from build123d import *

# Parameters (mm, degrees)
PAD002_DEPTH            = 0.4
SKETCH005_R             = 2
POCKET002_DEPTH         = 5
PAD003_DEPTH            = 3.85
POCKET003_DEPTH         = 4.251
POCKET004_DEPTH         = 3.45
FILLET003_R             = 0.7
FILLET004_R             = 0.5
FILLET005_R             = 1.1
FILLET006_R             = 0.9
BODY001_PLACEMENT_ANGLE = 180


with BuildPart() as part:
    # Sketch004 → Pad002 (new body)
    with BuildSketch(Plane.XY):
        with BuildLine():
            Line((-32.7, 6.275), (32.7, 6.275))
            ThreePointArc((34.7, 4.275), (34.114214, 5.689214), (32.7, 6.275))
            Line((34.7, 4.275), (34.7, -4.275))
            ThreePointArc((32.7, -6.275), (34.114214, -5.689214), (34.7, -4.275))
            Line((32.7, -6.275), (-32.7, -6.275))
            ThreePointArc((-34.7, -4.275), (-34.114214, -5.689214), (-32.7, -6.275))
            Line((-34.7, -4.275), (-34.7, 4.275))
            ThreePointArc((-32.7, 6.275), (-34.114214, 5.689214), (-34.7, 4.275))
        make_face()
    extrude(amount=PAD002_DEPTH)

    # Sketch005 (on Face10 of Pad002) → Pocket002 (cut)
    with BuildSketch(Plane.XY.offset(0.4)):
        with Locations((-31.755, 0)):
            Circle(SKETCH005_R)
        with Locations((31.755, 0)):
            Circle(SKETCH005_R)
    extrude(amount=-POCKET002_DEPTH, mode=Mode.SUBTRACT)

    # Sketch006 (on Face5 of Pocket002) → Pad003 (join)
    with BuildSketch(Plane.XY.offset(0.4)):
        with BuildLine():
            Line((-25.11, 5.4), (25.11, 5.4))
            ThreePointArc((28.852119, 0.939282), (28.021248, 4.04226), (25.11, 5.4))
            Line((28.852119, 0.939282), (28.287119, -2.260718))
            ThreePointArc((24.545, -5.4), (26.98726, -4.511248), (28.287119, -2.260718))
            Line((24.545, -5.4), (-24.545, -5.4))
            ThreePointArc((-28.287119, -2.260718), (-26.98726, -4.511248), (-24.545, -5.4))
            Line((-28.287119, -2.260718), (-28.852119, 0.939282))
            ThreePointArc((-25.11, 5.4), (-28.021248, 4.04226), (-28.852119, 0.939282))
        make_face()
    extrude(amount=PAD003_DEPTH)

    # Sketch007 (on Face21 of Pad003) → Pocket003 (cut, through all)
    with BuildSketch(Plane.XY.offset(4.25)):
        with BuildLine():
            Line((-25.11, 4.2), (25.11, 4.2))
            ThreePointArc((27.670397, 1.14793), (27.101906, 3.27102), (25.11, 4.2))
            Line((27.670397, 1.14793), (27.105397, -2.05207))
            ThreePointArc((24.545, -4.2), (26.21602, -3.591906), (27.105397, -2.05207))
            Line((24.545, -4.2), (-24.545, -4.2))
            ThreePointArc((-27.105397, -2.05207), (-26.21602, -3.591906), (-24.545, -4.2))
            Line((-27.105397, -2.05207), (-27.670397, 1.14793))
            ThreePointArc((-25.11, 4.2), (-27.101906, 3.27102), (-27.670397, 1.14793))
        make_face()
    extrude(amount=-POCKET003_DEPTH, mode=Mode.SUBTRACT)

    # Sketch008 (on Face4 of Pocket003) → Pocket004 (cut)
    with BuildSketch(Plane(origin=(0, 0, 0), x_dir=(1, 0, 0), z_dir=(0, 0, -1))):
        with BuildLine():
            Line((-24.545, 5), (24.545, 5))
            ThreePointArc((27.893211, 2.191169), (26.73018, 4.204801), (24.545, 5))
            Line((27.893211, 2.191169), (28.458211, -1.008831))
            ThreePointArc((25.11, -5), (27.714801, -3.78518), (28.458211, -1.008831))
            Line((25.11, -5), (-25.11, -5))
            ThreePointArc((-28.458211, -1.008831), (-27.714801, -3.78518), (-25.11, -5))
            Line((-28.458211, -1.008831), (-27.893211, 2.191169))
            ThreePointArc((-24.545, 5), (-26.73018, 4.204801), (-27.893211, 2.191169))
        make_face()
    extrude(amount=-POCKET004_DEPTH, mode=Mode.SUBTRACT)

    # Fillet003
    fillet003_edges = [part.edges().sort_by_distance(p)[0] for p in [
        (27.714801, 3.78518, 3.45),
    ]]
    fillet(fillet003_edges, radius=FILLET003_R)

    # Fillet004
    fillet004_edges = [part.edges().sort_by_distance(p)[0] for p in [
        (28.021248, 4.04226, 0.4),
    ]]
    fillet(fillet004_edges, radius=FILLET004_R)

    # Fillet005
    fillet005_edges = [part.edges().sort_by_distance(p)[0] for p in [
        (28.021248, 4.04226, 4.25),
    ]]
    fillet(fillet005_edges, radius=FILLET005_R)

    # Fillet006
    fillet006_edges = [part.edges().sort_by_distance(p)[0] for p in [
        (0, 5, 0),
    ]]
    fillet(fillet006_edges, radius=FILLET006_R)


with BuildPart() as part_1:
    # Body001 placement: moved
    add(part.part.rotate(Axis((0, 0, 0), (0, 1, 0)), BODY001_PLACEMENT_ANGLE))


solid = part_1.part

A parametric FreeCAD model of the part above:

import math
import FreeCAD as App
import Part
import Sketcher
Q = App.Units.Quantity


def edges_at(feature, points):
    """Names of the edges that pass closest to the given points."""
    edges = feature.Shape.Edges
    near = lambda p: min(range(len(edges)), key=lambda i: edges[i].distToShape(Part.Vertex(*p))[0])
    return sorted({f"Edge{near(p) + 1}" for p in points})

doc = App.newDocument("Part")
body = doc.addObject("PartDesign::Body", "Body")

# Sketch on XY plane
sketch1 = body.newObject("Sketcher::SketchObject", "Sketch")
sketch1.AttachmentSupport = (doc.getObject("XY_Plane"), [""])
sketch1.MapMode = "FlatFace"
sketch1.addGeometry(Part.LineSegment(App.Vector(32.7, 6.3, 0), App.Vector(-32.7, 6.3, 0)), False)
sketch1.addGeometry(Part.ArcOfCircle(Part.Circle(App.Vector(-32.7, 4.3, 0), App.Vector(0, 0, 1), 2), math.radians(90), math.radians(180)), False)
sketch1.addGeometry(Part.LineSegment(App.Vector(-34.7, 4.3, 0), App.Vector(-34.7, -4.3, 0)), False)
sketch1.addGeometry(Part.ArcOfCircle(Part.Circle(App.Vector(-32.7, -4.3, 0), App.Vector(0, 0, 1), 2), math.radians(180), math.radians(270)), False)
sketch1.addGeometry(Part.LineSegment(App.Vector(-32.7, -6.3, 0), App.Vector(32.7, -6.3, 0)), False)
sketch1.addGeometry(Part.ArcOfCircle(Part.Circle(App.Vector(32.7, -4.3, 0), App.Vector(0, 0, 1), 2), math.radians(-90), math.radians(0)), False)
sketch1.addGeometry(Part.LineSegment(App.Vector(34.7, -4.3, 0), App.Vector(34.7, 4.3, 0)), False)
sketch1.addGeometry(Part.ArcOfCircle(Part.Circle(App.Vector(32.7, 4.3, 0), App.Vector(0, 0, 1), 2), math.radians(0), math.radians(90)), False)
sketch1.addConstraint(Sketcher.Constraint("Tangent", 0, 2, 1, 1))
sketch1.addConstraint(Sketcher.Constraint("Tangent", 1, 2, 2, 1))
sketch1.addConstraint(Sketcher.Constraint("Tangent", 2, 2, 3, 1))
sketch1.addConstraint(Sketcher.Constraint("Tangent", 3, 2, 4, 1))
sketch1.addConstraint(Sketcher.Constraint("Tangent", 4, 2, 5, 1))
sketch1.addConstraint(Sketcher.Constraint("Tangent", 5, 2, 6, 1))
sketch1.addConstraint(Sketcher.Constraint("Tangent", 6, 2, 7, 1))
sketch1.addConstraint(Sketcher.Constraint("Tangent", 7, 2, 0, 1))
sketch1.addConstraint(Sketcher.Constraint("Horizontal", 0))
sketch1.addConstraint(Sketcher.Constraint("Vertical", 2))
sketch1.addConstraint(Sketcher.Constraint("Horizontal", 4))
sketch1.addConstraint(Sketcher.Constraint("Vertical", 6))
sketch1.addConstraint(Sketcher.Constraint("Equal", 1, 3))
sketch1.addConstraint(Sketcher.Constraint("Equal", 3, 5))
sketch1.addConstraint(Sketcher.Constraint("Equal", 5, 7))
sketch1.addConstraint(Sketcher.Constraint("Symmetric", 1, 3, 5, 3, -1, 1))
sketch1.addConstraint(Sketcher.Constraint("Radius", 1, Q("1.999999 mm")))
sketch1.addConstraint(Sketcher.Constraint("DistanceX", 0, 2, 0, 1, Q("65.4 mm")))
sketch1.addConstraint(Sketcher.Constraint("DistanceY", 2, 2, 2, 1, Q("8.55 mm")))
pad1 = body.newObject("PartDesign::Pad", "Pad")
pad1.Profile = sketch1
pad1.Length = 0.4

# Sketch on XY plane
sketch2 = body.newObject("Sketcher::SketchObject", "Sketch001")
sketch2.AttachmentSupport = (doc.getObject("XY_Plane"), [""])
sketch2.MapMode = "FlatFace"
sketch2.AttachmentOffset = App.Placement(App.Vector(0, 0, 0.4), App.Rotation())
sketch2.addGeometry(Part.Circle(App.Vector(-31.8, 0, 0), App.Vector(0, 0, 1), 2), False)
sketch2.addGeometry(Part.Circle(App.Vector(31.8, 0, 0), App.Vector(0, 0, 1), 2), False)
sketch2.addConstraint(Sketcher.Constraint("Equal", 0, 1))
sketch2.addConstraint(Sketcher.Constraint("Symmetric", 0, 3, 1, 3, -1, 1))
sketch2.addConstraint(Sketcher.Constraint("PointOnObject", 0, 3, -1))
sketch2.addConstraint(Sketcher.Constraint("Diameter", 0, Q("4 mm")))
sketch2.addConstraint(Sketcher.Constraint("DistanceX", 0, 3, 1, 3, Q("63.51 mm")))
pocket1 = body.newObject("PartDesign::Pocket", "Pocket")
pocket1.Profile = sketch2
pocket1.Length = 5

# Sketch on XY plane
sketch3 = body.newObject("Sketcher::SketchObject", "Sketch002")
sketch3.AttachmentSupport = (doc.getObject("XY_Plane"), [""])
sketch3.MapMode = "FlatFace"
sketch3.AttachmentOffset = App.Placement(App.Vector(0, 0, 0.4), App.Rotation())
sketch3.addGeometry(Part.LineSegment(App.Vector(25.1, 5.4, 0), App.Vector(-25.1, 5.4, 0)), False)
sketch3.addGeometry(Part.ArcOfCircle(Part.Circle(App.Vector(-25.1, 1.6, 0), App.Vector(0, 0, 1), 3.8), math.radians(90), math.radians(190)), False)
sketch3.addGeometry(Part.LineSegment(App.Vector(-28.9, 0.9, 0), App.Vector(-28.3, -2.3, 0)), False)
sketch3.addGeometry(Part.ArcOfCircle(Part.Circle(App.Vector(-24.5, -1.6, 0), App.Vector(0, 0, 1), 3.8), math.radians(-170), math.radians(-90)), False)
sketch3.addGeometry(Part.LineSegment(App.Vector(-24.5, -5.4, 0), App.Vector(24.5, -5.4, 0)), False)
sketch3.addGeometry(Part.ArcOfCircle(Part.Circle(App.Vector(24.5, -1.6, 0), App.Vector(0, 0, 1), 3.8), math.radians(-90), math.radians(-10)), False)
sketch3.addGeometry(Part.LineSegment(App.Vector(28.3, -2.3, 0), App.Vector(28.9, 0.9, 0)), False)
sketch3.addGeometry(Part.ArcOfCircle(Part.Circle(App.Vector(25.1, 1.6, 0), App.Vector(0, 0, 1), 3.8), math.radians(-10), math.radians(90)), False)
sketch3.addConstraint(Sketcher.Constraint("Tangent", 0, 2, 1, 1))
sketch3.addConstraint(Sketcher.Constraint("Tangent", 1, 2, 2, 1))
sketch3.addConstraint(Sketcher.Constraint("Tangent", 2, 2, 3, 1))
sketch3.addConstraint(Sketcher.Constraint("Tangent", 3, 2, 4, 1))
sketch3.addConstraint(Sketcher.Constraint("Tangent", 4, 2, 5, 1))
sketch3.addConstraint(Sketcher.Constraint("Tangent", 5, 2, 6, 1))
sketch3.addConstraint(Sketcher.Constraint("Tangent", 6, 2, 7, 1))
sketch3.addConstraint(Sketcher.Constraint("Tangent", 7, 2, 0, 1))
sketch3.addConstraint(Sketcher.Constraint("Horizontal", 0))
sketch3.addConstraint(Sketcher.Constraint("Horizontal", 4))
sketch3.addConstraint(Sketcher.Constraint("Equal", 1, 3))
sketch3.addConstraint(Sketcher.Constraint("Equal", 3, 5))
sketch3.addConstraint(Sketcher.Constraint("Equal", 5, 7))
sketch3.addConstraint(Sketcher.Constraint("Symmetric", 2, 2, 5, 2, -2))
sketch3.addConstraint(Sketcher.Constraint("Radius", 1, Q("3.800001 mm")))
sketch3.addConstraint(Sketcher.Constraint("DistanceY", 3, 3, 0, 2, Q("6.999999 mm")))
sketch3.addConstraint(Sketcher.Constraint("DistanceX", 0, 2, 0, 1, Q("50.22 mm")))
sketch3.addConstraint(Sketcher.Constraint("DistanceX", 4, 1, 4, 2, Q("49.09 mm")))
sketch3.addConstraint(Sketcher.Constraint("DistanceY", -1, 1, 1, 3, Q("1.599999 mm")))
pad2 = body.newObject("PartDesign::Pad", "Pad001")
pad2.Profile = sketch3
pad2.Length = 3.85

# Sketch on XY plane
sketch4 = body.newObject("Sketcher::SketchObject", "Sketch003")
sketch4.AttachmentSupport = (doc.getObject("XY_Plane"), [""])
sketch4.MapMode = "FlatFace"
sketch4.AttachmentOffset = App.Placement(App.Vector(0, 0, 4.25), App.Rotation())
sketch4.addGeometry(Part.LineSegment(App.Vector(25.1, 4.2, 0), App.Vector(-25.1, 4.2, 0)), False)
sketch4.addGeometry(Part.ArcOfCircle(Part.Circle(App.Vector(-25.1, 1.6, 0), App.Vector(0, 0, 1), 2.6), math.radians(90), math.radians(190)), False)
sketch4.addGeometry(Part.LineSegment(App.Vector(-27.7, 1.1, 0), App.Vector(-27.1, -2.1, 0)), False)
sketch4.addGeometry(Part.ArcOfCircle(Part.Circle(App.Vector(-24.5, -1.6, 0), App.Vector(0, 0, 1), 2.6), math.radians(-170), math.radians(-90)), False)
sketch4.addGeometry(Part.LineSegment(App.Vector(-24.5, -4.2, 0), App.Vector(24.5, -4.2, 0)), False)
sketch4.addGeometry(Part.ArcOfCircle(Part.Circle(App.Vector(24.5, -1.6, 0), App.Vector(0, 0, 1), 2.6), math.radians(-90), math.radians(-10)), False)
sketch4.addGeometry(Part.LineSegment(App.Vector(27.1, -2.1, 0), App.Vector(27.7, 1.1, 0)), False)
sketch4.addGeometry(Part.ArcOfCircle(Part.Circle(App.Vector(25.1, 1.6, 0), App.Vector(0, 0, 1), 2.6), math.radians(-10), math.radians(90)), False)
sketch4.addConstraint(Sketcher.Constraint("Tangent", 0, 2, 1, 1))
sketch4.addConstraint(Sketcher.Constraint("Tangent", 1, 2, 2, 1))
sketch4.addConstraint(Sketcher.Constraint("Tangent", 2, 2, 3, 1))
sketch4.addConstraint(Sketcher.Constraint("Tangent", 3, 2, 4, 1))
sketch4.addConstraint(Sketcher.Constraint("Tangent", 4, 2, 5, 1))
sketch4.addConstraint(Sketcher.Constraint("Tangent", 5, 2, 6, 1))
sketch4.addConstraint(Sketcher.Constraint("Tangent", 6, 2, 7, 1))
sketch4.addConstraint(Sketcher.Constraint("Tangent", 7, 2, 0, 1))
sketch4.addConstraint(Sketcher.Constraint("Horizontal", 0))
sketch4.addConstraint(Sketcher.Constraint("Horizontal", 4))
sketch4.addConstraint(Sketcher.Constraint("Equal", 1, 3))
sketch4.addConstraint(Sketcher.Constraint("Equal", 3, 5))
sketch4.addConstraint(Sketcher.Constraint("Equal", 5, 7))
sketch4.addConstraint(Sketcher.Constraint("Symmetric", 2, 2, 5, 2, -2))
sketch4.addConstraint(Sketcher.Constraint("Radius", 1, Q("2.600001 mm")))
sketch4.addConstraint(Sketcher.Constraint("DistanceX", 0, 2, 0, 1, Q("50.22 mm")))
sketch4.addConstraint(Sketcher.Constraint("DistanceX", 4, 1, 4, 2, Q("49.09 mm")))
sketch4.addConstraint(Sketcher.Constraint("DistanceY", -1, 1, 1, 3, Q("1.599999 mm")))
sketch4.addConstraint(Sketcher.Constraint("DistanceY", 3, 3, -1, 1, Q("1.599998 mm")))
pocket2 = body.newObject("PartDesign::Pocket", "Pocket001")
pocket2.Profile = sketch4
pocket2.Type = "ThroughAll"

# Sketch on XY plane
sketch5 = body.newObject("Sketcher::SketchObject", "Sketch004")
sketch5.AttachmentSupport = (doc.getObject("XY_Plane"), [""])
sketch5.MapMode = "FlatFace"
sketch5.addGeometry(Part.LineSegment(App.Vector(24.5, -5, 0), App.Vector(-24.5, -5, 0)), False)
sketch5.addGeometry(Part.ArcOfCircle(Part.Circle(App.Vector(-24.5, -1.6, 0), App.Vector(0, 0, 1), 3.4), math.radians(-170), math.radians(-90)), False)
sketch5.addGeometry(Part.LineSegment(App.Vector(-27.9, -2.2, 0), App.Vector(-28.5, 1, 0)), False)
sketch5.addGeometry(Part.ArcOfCircle(Part.Circle(App.Vector(-25.1, 1.6, 0), App.Vector(0, 0, 1), 3.4), math.radians(90), math.radians(190)), False)
sketch5.addGeometry(Part.LineSegment(App.Vector(-25.1, 5, 0), App.Vector(25.1, 5, 0)), False)
sketch5.addGeometry(Part.ArcOfCircle(Part.Circle(App.Vector(25.1, 1.6, 0), App.Vector(0, 0, 1), 3.4), math.radians(-10), math.radians(90)), False)
sketch5.addGeometry(Part.LineSegment(App.Vector(28.5, 1, 0), App.Vector(27.9, -2.2, 0)), False)
sketch5.addGeometry(Part.ArcOfCircle(Part.Circle(App.Vector(24.5, -1.6, 0), App.Vector(0, 0, 1), 3.4), math.radians(-90), math.radians(-10)), False)
sketch5.addConstraint(Sketcher.Constraint("Tangent", 0, 2, 1, 2))
sketch5.addConstraint(Sketcher.Constraint("Tangent", 1, 1, 2, 1))
sketch5.addConstraint(Sketcher.Constraint("Tangent", 2, 2, 3, 2))
sketch5.addConstraint(Sketcher.Constraint("Tangent", 3, 1, 4, 1))
sketch5.addConstraint(Sketcher.Constraint("Tangent", 4, 2, 5, 2))
sketch5.addConstraint(Sketcher.Constraint("Tangent", 5, 1, 6, 1))
sketch5.addConstraint(Sketcher.Constraint("Tangent", 6, 2, 7, 2))
sketch5.addConstraint(Sketcher.Constraint("Tangent", 7, 1, 0, 1))
sketch5.addConstraint(Sketcher.Constraint("Horizontal", 0))
sketch5.addConstraint(Sketcher.Constraint("Horizontal", 4))
sketch5.addConstraint(Sketcher.Constraint("Equal", 1, 3))
sketch5.addConstraint(Sketcher.Constraint("Equal", 3, 5))
sketch5.addConstraint(Sketcher.Constraint("Equal", 5, 7))
sketch5.addConstraint(Sketcher.Constraint("Symmetric", 2, 2, 5, 1, -2))
sketch5.addConstraint(Sketcher.Constraint("Radius", 1, Q("3.399999 mm")))
sketch5.addConstraint(Sketcher.Constraint("DistanceY", 0, 2, -1, 1, Q("5 mm")))
sketch5.addConstraint(Sketcher.Constraint("DistanceY", -1, 1, 3, 1, Q("5 mm")))
sketch5.addConstraint(Sketcher.Constraint("DistanceX", 0, 2, 0, 1, Q("49.09 mm")))
sketch5.addConstraint(Sketcher.Constraint("DistanceX", 4, 1, 4, 2, Q("50.22 mm")))
pocket3 = body.newObject("PartDesign::Pocket", "Pocket002")
pocket3.Profile = sketch5
pocket3.Length = 3.45
pocket3.Reversed = True
doc.recompute()

fillet = body.newObject("PartDesign::Fillet", "Fillet")
fillet.Base = (pocket3, edges_at(pocket3, [(27.715, 3.785, 3.45)]))
fillet.Radius = 0.7
doc.recompute()

fillet2 = body.newObject("PartDesign::Fillet", "Fillet001")
fillet2.Base = (fillet, edges_at(fillet, [(28.021, 4.042, 0.4)]))
fillet2.Radius = 0.5
doc.recompute()

fillet3 = body.newObject("PartDesign::Fillet", "Fillet002")
fillet3.Base = (fillet2, edges_at(fillet2, [(28.021, 4.042, 4.25)]))
fillet3.Radius = 1.1
doc.recompute()

fillet4 = body.newObject("PartDesign::Fillet", "Fillet003")
fillet4.Base = (fillet3, edges_at(fillet3, [(0, 5, 0)]))
fillet4.Radius = 0.9
body2 = doc.addObject("PartDesign::Body", "Body001")
doc.recompute()

body.Placement = App.Placement(App.Vector(0, 0, 0), App.Rotation(App.Vector(0, 1, 0), 180))
boolean = body2.newObject("PartDesign::Boolean", "Boolean")
boolean.Type = "Fuse"
boolean.addObjects([body])

doc.recompute()
